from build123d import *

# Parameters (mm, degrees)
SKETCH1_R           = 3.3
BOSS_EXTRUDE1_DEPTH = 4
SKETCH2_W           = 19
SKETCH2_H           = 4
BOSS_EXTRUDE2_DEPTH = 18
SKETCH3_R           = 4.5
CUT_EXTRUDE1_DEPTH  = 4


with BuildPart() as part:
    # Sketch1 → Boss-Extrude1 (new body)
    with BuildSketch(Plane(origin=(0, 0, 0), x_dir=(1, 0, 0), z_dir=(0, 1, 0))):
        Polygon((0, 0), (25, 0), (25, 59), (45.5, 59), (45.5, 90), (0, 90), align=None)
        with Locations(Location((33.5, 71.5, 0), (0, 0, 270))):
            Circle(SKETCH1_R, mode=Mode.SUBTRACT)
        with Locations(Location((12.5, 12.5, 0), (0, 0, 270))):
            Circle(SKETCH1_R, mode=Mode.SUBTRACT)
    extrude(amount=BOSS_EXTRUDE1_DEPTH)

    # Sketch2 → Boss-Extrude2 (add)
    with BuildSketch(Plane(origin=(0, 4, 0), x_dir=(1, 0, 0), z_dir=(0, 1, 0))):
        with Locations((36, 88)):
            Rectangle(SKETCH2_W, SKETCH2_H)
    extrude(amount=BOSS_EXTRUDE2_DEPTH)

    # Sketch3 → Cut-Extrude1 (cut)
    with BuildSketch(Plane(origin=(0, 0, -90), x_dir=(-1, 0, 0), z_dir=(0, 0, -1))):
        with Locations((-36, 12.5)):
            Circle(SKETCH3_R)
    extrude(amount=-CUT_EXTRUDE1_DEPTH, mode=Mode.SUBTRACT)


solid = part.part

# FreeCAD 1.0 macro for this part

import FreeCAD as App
import Part
import Sketcher
Q = App.Units.Quantity


def add_polygon(sketch, points):
    """Adds a closed chain of lines whose ends are joined by coincident constraints."""
    first, n = sketch.GeometryCount, len(points)
    for a, b in zip(points, points[1:] + points[:1]):
        sketch.addGeometry(Part.LineSegment(App.Vector(*a, 0), App.Vector(*b, 0)), False)
    for i in range(n):
        sketch.addConstraint(Sketcher.Constraint("Coincident", first + i, 2, first + (i + 1) % n, 1))

doc = App.newDocument("Part")
params = doc.addObject("Spreadsheet::Sheet", "Params")
for row, (alias, value) in enumerate([
    ("sketch1_diameter", "6.6 mm"),
    ("sketch1_width", "25 mm"),
    ("sketch1_height", "59 mm"),
    ("sketch1_height2", "31 mm"),
    ("sketch1_width2", "20.5 mm"),
    ("pad1_length", "4 mm"),
    ("sketch2_width", "19 mm"),
    ("sketch2_height", "4 mm"),
    ("pad2_length", "18 mm"),
    ("sketch3_diameter", "9 mm"),
    ("pocket1_length", "4 mm"),
], start=1):
    params.set(f"A{row}", alias)
    params.set(f"B{row}", "=" + value)
    params.setAlias(f"B{row}", alias)

body = doc.addObject("PartDesign::Body", "Body")

# Sketch on XZ plane
sketch1 = doc.addObject("Sketcher::SketchObject", "Sketch")
body.addObject(sketch1)
sketch1.AttachmentSupport = (doc.XZ_Plane, [""])
sketch1.MapMode = "FlatFace"
add_polygon(sketch1, [(0, 0), (25, 0), (25, -59), (45.5, -59), (45.5, -90), (0, -90)])  # lines 0-5
sketch1.addGeometry(Part.Circle(App.Vector(12.5, -12.5, 0), App.Vector(0, 0, 1), 3.3), False)  # 6
sketch1.addGeometry(Part.Circle(App.Vector(33.5, -71.5, 0), App.Vector(0, 0, 1), 3.3), False)  # 7
sketch1.addConstraint([
    Sketcher.Constraint("Horizontal", 0),
    Sketcher.Constraint("Vertical", 1),
    Sketcher.Constraint("Horizontal", 2),
    Sketcher.Constraint("Vertical", 3),
    Sketcher.Constraint("Horizontal", 4),
    Sketcher.Constraint("Vertical", 5),
    Sketcher.Constraint("Coincident", 5, 2, -1, 1),
    Sketcher.Constraint("Equal", 6, 7),
    Sketcher.Constraint("Diameter", 6, Q("6.6 mm")),
    Sketcher.Constraint("DistanceX", 0, 1, 0, 2, Q("25 mm")),
    Sketcher.Constraint("DistanceY", 1, 2, 1, 1, Q("59 mm")),
    Sketcher.Constraint("DistanceY", 3, 2, 3, 1, Q("31 mm")),
    Sketcher.Constraint("DistanceX", 2, 1, 2, 2, Q("20.5 mm")),
    Sketcher.Constraint("DistanceX", 6, 3, 7, 3, Q("21 mm")),
    Sketcher.Constraint("DistanceY", 7, 3, 6, 3, Q("59 mm")),
    Sketcher.Constraint("DistanceX", 7, 3, 2, 2, Q("12 mm")),
    Sketcher.Constraint("DistanceY", 6, 3, -1, 1, Q("12.5 mm")),
])
sketch1.setExpression("Constraints[14]", "Params.sketch1_diameter")
sketch1.setExpression("Constraints[15]", "Params.sketch1_width")
sketch1.setExpression("Constraints[16]", "Params.sketch1_height")
sketch1.setExpression("Constraints[17]", "Params.sketch1_height2")
sketch1.setExpression("Constraints[18]", "Params.sketch1_width2")
pad1 = doc.addObject("PartDesign::Pad", "Pad")
body.addObject(pad1)
pad1.Profile = sketch1
pad1.setExpression("Length", "Params.pad1_length")
pad1.Reversed = True

# Sketch on XZ plane
sketch2 = doc.addObject("Sketcher::SketchObject", "Sketch001")
body.addObject(sketch2)
sketch2.AttachmentSupport = (doc.XZ_Plane, [""])
sketch2.MapMode = "FlatFace"
sketch2.AttachmentOffset = App.Placement(App.Vector(0, 0, -4), App.Rotation())
add_polygon(sketch2, [(26.5, -90), (26.5, -86), (45.5, -86), (45.5, -90)])  # lines 0-3
sketch2.addConstraint([
    Sketcher.Constraint("Vertical", 0),
    Sketcher.Constraint("Horizontal", 1),
    Sketcher.Constraint("Vertical", 2),
    Sketcher.Constraint("Horizontal", 3),
    Sketcher.Constraint("DistanceX", 1, 1, 1, 2, Q("19 mm")),
    Sketcher.Constraint("DistanceY", 0, 1, 0, 2, Q("4 mm")),
    Sketcher.Constraint("DistanceY", 0, 2, -1, 1, Q("86 mm")),
    Sketcher.Constraint("DistanceX", -1, 1, 0, 2, Q("26.5 mm")),
])
sketch2.setExpression("Constraints[8]", "Params.sketch2_width")
sketch2.setExpression("Constraints[9]", "Params.sketch2_height")
pad2 = doc.addObject("PartDesign::Pad", "Pad001")
body.addObject(pad2)
pad2.Profile = sketch2
pad2.setExpression("Length", "Params.pad2_length")
pad2.Reversed = True

# Sketch on XY plane
sketch3 = doc.addObject("Sketcher::SketchObject", "Sketch002")
body.addObject(sketch3)
sketch3.AttachmentSupport = (doc.XY_Plane, [""])
sketch3.MapMode = "FlatFace"
sketch3.AttachmentOffset = App.Placement(App.Vector(0, 0, -90), App.Rotation())
sketch3.addGeometry(Part.Circle(App.Vector(36, 12.5, 0), App.Vector(0, 0, 1), 4.5), False)
sketch3.addConstraint([
    Sketcher.Constraint("Diameter", 0, Q("9 mm")),
    Sketcher.Constraint("DistanceX", -1, 1, 0, 3, Q("36 mm")),
    Sketcher.Constraint("DistanceY", -1, 1, 0, 3, Q("12.5 mm")),
])
sketch3.setExpression("Constraints[0]", "Params.sketch3_diameter")
pocket1 = doc.addObject("PartDesign::Pocket", "Pocket")
body.addObject(pocket1)
pocket1.Profile = sketch3
pocket1.setExpression("Length", "Params.pocket1_length")
pocket1.Reversed = True

doc.recompute()
